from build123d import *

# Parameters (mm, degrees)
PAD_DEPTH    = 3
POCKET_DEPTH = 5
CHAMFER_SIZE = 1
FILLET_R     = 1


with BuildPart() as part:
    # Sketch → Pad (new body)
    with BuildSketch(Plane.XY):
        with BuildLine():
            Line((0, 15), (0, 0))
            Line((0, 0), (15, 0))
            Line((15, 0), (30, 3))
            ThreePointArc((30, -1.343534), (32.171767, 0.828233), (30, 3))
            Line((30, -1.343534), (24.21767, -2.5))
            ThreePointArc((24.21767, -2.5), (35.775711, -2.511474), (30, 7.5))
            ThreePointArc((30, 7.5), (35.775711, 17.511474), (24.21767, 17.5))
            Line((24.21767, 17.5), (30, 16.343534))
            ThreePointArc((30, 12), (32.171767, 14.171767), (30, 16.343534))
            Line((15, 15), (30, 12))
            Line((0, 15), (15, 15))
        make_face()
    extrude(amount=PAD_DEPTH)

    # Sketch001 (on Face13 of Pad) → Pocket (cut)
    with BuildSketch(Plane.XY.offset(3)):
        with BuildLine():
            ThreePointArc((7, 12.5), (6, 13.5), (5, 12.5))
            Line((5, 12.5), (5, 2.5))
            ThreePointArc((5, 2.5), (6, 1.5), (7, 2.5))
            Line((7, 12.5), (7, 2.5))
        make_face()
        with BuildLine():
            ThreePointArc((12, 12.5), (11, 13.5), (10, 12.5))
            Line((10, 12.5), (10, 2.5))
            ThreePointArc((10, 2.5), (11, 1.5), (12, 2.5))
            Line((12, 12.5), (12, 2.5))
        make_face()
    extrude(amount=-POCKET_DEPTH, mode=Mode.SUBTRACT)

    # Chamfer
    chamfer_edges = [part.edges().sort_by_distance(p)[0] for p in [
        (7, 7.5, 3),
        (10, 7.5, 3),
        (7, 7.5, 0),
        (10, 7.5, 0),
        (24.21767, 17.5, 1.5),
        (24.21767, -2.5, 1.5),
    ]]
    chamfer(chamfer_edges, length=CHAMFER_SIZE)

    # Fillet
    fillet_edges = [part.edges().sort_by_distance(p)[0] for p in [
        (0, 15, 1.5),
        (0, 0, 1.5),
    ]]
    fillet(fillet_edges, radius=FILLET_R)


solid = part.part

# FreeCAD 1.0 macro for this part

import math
import FreeCAD as App
import Part
import Sketcher
from FreeCAD import Vector
Q = App.Units.Quantity


def edges_at(feature, points):
    """Names of the edges that pass closest to the given points."""
    edges = feature.Shape.Edges
    near = lambda p: min(range(len(edges)), key=lambda i: edges[i].distToShape(Part.Vertex(*p))[0])
    return sorted({f"Edge{near(p) + 1}" for p in points})

doc = App.newDocument("Part")
body = doc.addObject("PartDesign::Body", "Body")

# Sketch on XY plane
sketch1 = doc.addObject("Sketcher::SketchObject", "Sketch")
body.addObject(sketch1)
sketch1.AttachmentSupport = (doc.XY_Plane, [""])
sketch1.MapMode = "FlatFace"
sketch1.addGeometry([
    Part.LineSegment(Vector(0, 15, 0), Vector(0, 0, 0)),  # 0
    Part.LineSegment(Vector(0, 0, 0), Vector(15, 0, 0)),  # 1
    Part.LineSegment(Vector(15, 0, 0), Vector(30, 3, 0)),  # 2
    Part.ArcOfCircle(Part.Circle(Vector(30, 0.828233, 0), Vector(0, 0, 1), 2.171767), math.radians(-90), math.radians(90)),  # 3
    Part.LineSegment(Vector(30, -1.343534, 0), Vector(24.21767, -2.5, 0)),  # 4
    Part.ArcOfCircle(Part.Circle(Vector(30, 0.828233, 0), Vector(0, 0, 1), 6.671767), math.radians(-150.075838), math.radians(90.000002)),  # 5
    Part.ArcOfCircle(Part.Circle(Vector(30, 14.171767, 0), Vector(0, 0, 1), 6.671767), math.radians(-90.000002), math.radians(150.075838)),  # 6
    Part.LineSegment(Vector(24.21767, 17.5, 0), Vector(30, 16.343534, 0)),  # 7
    Part.ArcOfCircle(Part.Circle(Vector(30, 14.171767, 0), Vector(0, 0, 1), 2.171767), math.radians(-90), math.radians(90)),  # 8
    Part.LineSegment(Vector(30, 12, 0), Vector(15, 15, 0)),  # 9
    Part.LineSegment(Vector(15, 15, 0), Vector(0, 15, 0)),  # 10
], False)
sketch1.addConstraint([
    Sketcher.Constraint("Coincident", 0, 2, 1, 1),
    Sketcher.Constraint("Coincident", 1, 2, 2, 1),
    Sketcher.Constraint("Coincident", 2, 2, 3, 2),
    Sketcher.Constraint("Coincident", 3, 1, 4, 1),
    Sketcher.Constraint("Coincident", 4, 2, 5, 1),
    Sketcher.Constraint("Tangent", 5, 2, 6, 1),
    Sketcher.Constraint("Coincident", 6, 2, 7, 1),
    Sketcher.Constraint("Coincident", 7, 2, 8, 2),
    Sketcher.Constraint("Coincident", 8, 1, 9, 1),
    Sketcher.Constraint("Coincident", 9, 2, 10, 1),
    Sketcher.Constraint("Coincident", 10, 2, 0, 1),
    Sketcher.Constraint("Vertical", 0),
    Sketcher.Constraint("Horizontal", 1),
    Sketcher.Constraint("Horizontal", 10),
    Sketcher.Constraint("Coincident", 0, 2, -1, 1),
    Sketcher.Constraint("Coincident", 5, 3, 3, 3),
    Sketcher.Constraint("Coincident", 8, 3, 6, 3),
    Sketcher.Constraint("Equal", 5, 6),
    Sketcher.Constraint("Equal", 3, 8),
    Sketcher.Constraint("Parallel", 2, 4),
    Sketcher.Constraint("Parallel", 7, 9),
    Sketcher.Constraint("Vertical", 5, 3, 6, 3),
    Sketcher.Constraint("Vertical", 8, 3, 2, 2),
    Sketcher.Constraint("Vertical", 2, 2, 3, 1),
    Sketcher.Constraint("Vertical", 4, 2, 6, 2),
    Sketcher.Constraint("Vertical", 5, 2, 7, 2),
    Sketcher.Constraint("Vertical", 7, 2, 8, 1),
    Sketcher.Constraint("Vertical", 1, 2, 9, 2),
    Sketcher.Constraint("Equal", 10, 0),
    Sketcher.Constraint("DistanceX", 1, 1, 1, 2, Q("15 mm")),
    Sketcher.Constraint("DistanceX", -1, 1, 3, 3, Q("30 mm")),
    Sketcher.Constraint("DistanceY", -1, 1, 2, 2, Q("3 mm")),
    Sketcher.Constraint("DistanceY", 5, 2, 6, 2, Q("10 mm")),
])
pad1 = doc.addObject("PartDesign::Pad", "Pad")
body.addObject(pad1)
pad1.Profile = sketch1
pad1.Length = 3

# Sketch on XY plane
sketch2 = doc.addObject("Sketcher::SketchObject", "Sketch001")
body.addObject(sketch2)
sketch2.AttachmentSupport = (doc.XY_Plane, [""])
sketch2.MapMode = "FlatFace"
sketch2.AttachmentOffset = App.Placement(Vector(0, 0, 3), App.Rotation())
sketch2.addGeometry([
    Part.ArcOfCircle(Part.Circle(Vector(6, 12.5, 0), Vector(0, 0, 1), 1), math.radians(0), math.radians(180)),  # 0
    Part.LineSegment(Vector(5, 12.5, 0), Vector(5, 2.5, 0)),  # 1
    Part.ArcOfCircle(Part.Circle(Vector(6, 2.5, 0), Vector(0, 0, 1), 1), math.radians(180), math.radians(360)),  # 2
    Part.LineSegment(Vector(7, 2.5, 0), Vector(7, 12.5, 0)),  # 3
    Part.ArcOfCircle(Part.Circle(Vector(11, 12.5, 0), Vector(0, 0, 1), 1), math.radians(0), math.radians(180)),  # 4
    Part.LineSegment(Vector(10, 12.5, 0), Vector(10, 2.5, 0)),  # 5
    Part.ArcOfCircle(Part.Circle(Vector(11, 2.5, 0), Vector(0, 0, 1), 1), math.radians(180), math.radians(360)),  # 6
    Part.LineSegment(Vector(12, 2.5, 0), Vector(12, 12.5, 0)),  # 7
], False)
sketch2.addConstraint([
    Sketcher.Constraint("Tangent", 0, 2, 1, 1),
    Sketcher.Constraint("Tangent", 1, 2, 2, 1),
    Sketcher.Constraint("Tangent", 2, 2, 3, 1),
    Sketcher.Constraint("Tangent", 3, 2, 0, 1),
    Sketcher.Constraint("Tangent", 4, 2, 5, 1),
    Sketcher.Constraint("Tangent", 5, 2, 6, 1),
    Sketcher.Constraint("Tangent", 6, 2, 7, 1),
    Sketcher.Constraint("Tangent", 7, 2, 4, 1),
    Sketcher.Constraint("Vertical", 1),
    Sketcher.Constraint("Vertical", 3),
    Sketcher.Constraint("Vertical", 5),
    Sketcher.Constraint("Vertical", 7),
    Sketcher.Constraint("Equal", 2, 4),
    Sketcher.Constraint("Horizontal", 0, 3, 4, 3),
    Sketcher.Constraint("Horizontal", 2, 3, 6, 3),
    Sketcher.Constraint("Radius", 0, Q("1 mm")),
    Sketcher.Constraint("DistanceY", 1, 2, 1, 1, Q("10 mm")),
    Sketcher.Constraint("DistanceX", -1, 1, 0, 3, Q("6 mm")),
    Sketcher.Constraint("DistanceX", -1, 1, 4, 3, Q("11 mm")),
    Sketcher.Constraint("DistanceY", -1, 1, 0, 3, Q("12.5 mm")),
])
pocket1 = doc.addObject("PartDesign::Pocket", "Pocket")
body.addObject(pocket1)
pocket1.Profile = sketch2
pocket1.Length = 5
doc.recompute()

chamfer = doc.addObject("PartDesign::Chamfer", "Chamfer")
body.addObject(chamfer)
chamfer.Base = (pocket1, edges_at(pocket1, [
    (7, 7.5, 3),
    (10, 7.5, 3),
    (7, 7.5, 0),
    (10, 7.5, 0),
    (24.218, 17.5, 1.5),
    (24.218, -2.5, 1.5),
]))
chamfer.Size = 1
doc.recompute()

fillet = doc.addObject("PartDesign::Fillet", "Fillet")
body.addObject(fillet)
fillet.Base = (chamfer, edges_at(chamfer, [(0, 15, 1.5), (0, 0, 1.5)]))
fillet.Radius = 1

doc.recompute()
